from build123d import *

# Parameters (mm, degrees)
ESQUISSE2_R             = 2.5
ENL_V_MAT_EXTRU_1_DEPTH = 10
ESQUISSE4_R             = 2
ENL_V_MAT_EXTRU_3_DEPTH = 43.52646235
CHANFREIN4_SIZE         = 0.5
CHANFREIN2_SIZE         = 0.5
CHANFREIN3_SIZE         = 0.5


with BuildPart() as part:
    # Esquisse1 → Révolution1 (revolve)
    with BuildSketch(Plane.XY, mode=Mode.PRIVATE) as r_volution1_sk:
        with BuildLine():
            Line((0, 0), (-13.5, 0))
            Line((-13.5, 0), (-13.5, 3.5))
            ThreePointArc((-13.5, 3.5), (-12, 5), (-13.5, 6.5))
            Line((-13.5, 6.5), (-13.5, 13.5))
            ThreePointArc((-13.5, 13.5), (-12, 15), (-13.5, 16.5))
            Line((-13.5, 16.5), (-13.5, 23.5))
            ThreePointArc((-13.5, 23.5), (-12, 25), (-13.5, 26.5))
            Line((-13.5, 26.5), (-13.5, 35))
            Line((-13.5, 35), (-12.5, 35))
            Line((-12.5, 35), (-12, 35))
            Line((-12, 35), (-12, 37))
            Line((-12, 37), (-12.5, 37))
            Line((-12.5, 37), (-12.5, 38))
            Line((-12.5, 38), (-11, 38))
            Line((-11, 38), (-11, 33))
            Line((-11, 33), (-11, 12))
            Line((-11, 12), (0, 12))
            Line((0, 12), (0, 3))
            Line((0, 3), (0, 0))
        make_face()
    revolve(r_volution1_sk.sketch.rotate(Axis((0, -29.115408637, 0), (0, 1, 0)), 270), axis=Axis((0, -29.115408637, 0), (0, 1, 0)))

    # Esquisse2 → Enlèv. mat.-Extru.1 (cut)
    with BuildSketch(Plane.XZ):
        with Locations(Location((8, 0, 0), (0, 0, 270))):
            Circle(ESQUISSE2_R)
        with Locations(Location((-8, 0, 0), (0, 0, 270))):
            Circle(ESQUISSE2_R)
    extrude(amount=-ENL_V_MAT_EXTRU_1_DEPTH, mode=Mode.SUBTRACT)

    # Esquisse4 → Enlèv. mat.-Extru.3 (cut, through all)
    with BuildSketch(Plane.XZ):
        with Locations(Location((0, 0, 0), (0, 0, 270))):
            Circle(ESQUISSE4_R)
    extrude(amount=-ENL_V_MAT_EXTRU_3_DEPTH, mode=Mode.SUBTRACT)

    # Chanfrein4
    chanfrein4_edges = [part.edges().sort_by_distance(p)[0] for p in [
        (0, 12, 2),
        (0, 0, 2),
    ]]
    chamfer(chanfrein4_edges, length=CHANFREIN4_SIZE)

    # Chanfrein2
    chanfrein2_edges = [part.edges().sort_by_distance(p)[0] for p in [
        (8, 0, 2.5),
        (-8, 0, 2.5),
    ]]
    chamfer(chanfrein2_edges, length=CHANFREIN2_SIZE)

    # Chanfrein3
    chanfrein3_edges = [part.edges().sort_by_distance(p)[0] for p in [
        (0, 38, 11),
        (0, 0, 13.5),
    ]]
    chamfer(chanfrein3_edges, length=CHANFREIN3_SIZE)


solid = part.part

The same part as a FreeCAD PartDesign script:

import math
import FreeCAD as App
import Part
import Sketcher
Q = App.Units.Quantity


def edges_at(feature, points):
    """Names of the edges that pass closest to the given points."""
    edges = feature.Shape.Edges
    near = lambda p: min(range(len(edges)), key=lambda i: edges[i].distToShape(Part.Vertex(*p))[0])
    return sorted({f"Edge{near(p) + 1}" for p in points})

doc = App.newDocument("Part")
body = doc.addObject("PartDesign::Body", "Body")

# Sketch on XY plane
sketch1 = body.newObject("Sketcher::SketchObject", "Sketch")
sketch1.AttachmentSupport = (doc.getObject("XY_Plane"), [""])
sketch1.MapMode = "FlatFace"
sketch1.addGeometry([
    Part.LineSegment(App.Vector(-13.5, 0, 0), App.Vector(0, 0, 0)),  # 0
    Part.LineSegment(App.Vector(0, 0, 0), App.Vector(0, 12, 0)),  # 1
    Part.LineSegment(App.Vector(0, 12, 0), App.Vector(-11, 12, 0)),  # 2
    Part.LineSegment(App.Vector(-11, 12, 0), App.Vector(-11, 38, 0)),  # 3
    Part.LineSegment(App.Vector(-11, 38, 0), App.Vector(-12.5, 38, 0)),  # 4
    Part.LineSegment(App.Vector(-12.5, 38, 0), App.Vector(-12.5, 37, 0)),  # 5
    Part.LineSegment(App.Vector(-12.5, 37, 0), App.Vector(-12, 37, 0)),  # 6
    Part.LineSegment(App.Vector(-12, 37, 0), App.Vector(-12, 35, 0)),  # 7
    Part.LineSegment(App.Vector(-12, 35, 0), App.Vector(-13.5, 35, 0)),  # 8
    Part.LineSegment(App.Vector(-13.5, 35, 0), App.Vector(-13.5, 26.5, 0)),  # 9
    Part.ArcOfCircle(Part.Circle(App.Vector(-13.5, 25, 0), App.Vector(0, 0, 1), 1.5), math.radians(-90), math.radians(90)),  # 10
    Part.LineSegment(App.Vector(-13.5, 23.5, 0), App.Vector(-13.5, 16.5, 0)),  # 11
    Part.ArcOfCircle(Part.Circle(App.Vector(-13.5, 15, 0), App.Vector(0, 0, 1), 1.5), math.radians(-90), math.radians(90)),  # 12
    Part.LineSegment(App.Vector(-13.5, 13.5, 0), App.Vector(-13.5, 6.5, 0)),  # 13
    Part.ArcOfCircle(Part.Circle(App.Vector(-13.5, 5, 0), App.Vector(0, 0, 1), 1.5), math.radians(-90), math.radians(90)),  # 14
    Part.LineSegment(App.Vector(-13.5, 3.5, 0), App.Vector(-13.5, 0, 0)),  # 15
], False)
sketch1.addConstraint([
    Sketcher.Constraint("Coincident", 0, 2, 1, 1),
    Sketcher.Constraint("Coincident", 1, 2, 2, 1),
    Sketcher.Constraint("Coincident", 2, 2, 3, 1),
    Sketcher.Constraint("Coincident", 3, 2, 4, 1),
    Sketcher.Constraint("Coincident", 4, 2, 5, 1),
    Sketcher.Constraint("Coincident", 5, 2, 6, 1),
    Sketcher.Constraint("Coincident", 6, 2, 7, 1),
    Sketcher.Constraint("Coincident", 7, 2, 8, 1),
    Sketcher.Constraint("Coincident", 8, 2, 9, 1),
    Sketcher.Constraint("Coincident", 9, 2, 10, 2),
    Sketcher.Constraint("Coincident", 10, 1, 11, 1),
    Sketcher.Constraint("Coincident", 11, 2, 12, 2),
    Sketcher.Constraint("Coincident", 12, 1, 13, 1),
    Sketcher.Constraint("Coincident", 13, 2, 14, 2),
    Sketcher.Constraint("Coincident", 14, 1, 15, 1),
    Sketcher.Constraint("Coincident", 15, 2, 0, 1),
    Sketcher.Constraint("Horizontal", 0),
    Sketcher.Constraint("Vertical", 1),
    Sketcher.Constraint("Horizontal", 2),
    Sketcher.Constraint("Vertical", 3),
    Sketcher.Constraint("Horizontal", 4),
    Sketcher.Constraint("Vertical", 5),
    Sketcher.Constraint("Horizontal", 6),
    Sketcher.Constraint("Vertical", 7),
    Sketcher.Constraint("Horizontal", 8),
    Sketcher.Constraint("Vertical", 9),
    Sketcher.Constraint("Vertical", 11),
    Sketcher.Constraint("Vertical", 13),
    Sketcher.Constraint("Vertical", 15),
    Sketcher.Constraint("Coincident", 0, 2, -1, 1),
    Sketcher.Constraint("Equal", 10, 12),
    Sketcher.Constraint("Equal", 12, 14),
    Sketcher.Constraint("Vertical", 10, 3, 12, 3),
    Sketcher.Constraint("Vertical", 12, 3, 14, 3),
    Sketcher.Constraint("Vertical", 14, 3, 8, 2),
    Sketcher.Constraint("Vertical", 9, 2, 10, 1),
    Sketcher.Constraint("Vertical", 11, 2, 12, 1),
    Sketcher.Constraint("Vertical", 13, 2, 14, 1),
    Sketcher.Constraint("Equal", 4, 8),
    Sketcher.Constraint("Equal", 11, 13),
    Sketcher.Constraint("Radius", 10, Q("1.5 mm")),
    Sketcher.Constraint("DistanceX", 2, 2, 2, 1, Q("11 mm")),
    Sketcher.Constraint("DistanceY", 1, 1, 1, 2, Q("12 mm")),
    Sketcher.Constraint("DistanceY", 3, 1, 3, 2, Q("26 mm")),
    Sketcher.Constraint("DistanceY", 5, 2, 5, 1, Q("1 mm")),
    Sketcher.Constraint("DistanceY", 7, 2, 7, 1, Q("2 mm")),
    Sketcher.Constraint("DistanceY", 11, 2, 11, 1, Q("7 mm")),
    Sketcher.Constraint("DistanceX", 0, 1, 0, 2, Q("13.5 mm")),
    Sketcher.Constraint("DistanceX", 4, 2, 4, 1, Q("1.5 mm")),
    Sketcher.Constraint("DistanceY", 9, 2, 9, 1, Q("8.5 mm")),
])
revolution = body.newObject("PartDesign::Revolution", "Revolution")
revolution.Profile = sketch1
revolution.ReferenceAxis = (sketch1, ["V_Axis"])
revolution.Angle = 360

# Sketch on XZ plane
sketch2 = body.newObject("Sketcher::SketchObject", "Sketch001")
sketch2.AttachmentSupport = (doc.getObject("XZ_Plane"), [""])
sketch2.MapMode = "FlatFace"
sketch2.addGeometry([
    Part.Circle(App.Vector(8, 0, 0), App.Vector(0, 0, 1), 2.5),
    Part.Circle(App.Vector(-8, 0, 0), App.Vector(0, 0, 1), 2.5),
], False)
sketch2.addConstraint([
    Sketcher.Constraint("Equal", 0, 1),
    Sketcher.Constraint("Symmetric", 0, 3, 1, 3, -1, 1),
    Sketcher.Constraint("PointOnObject", 0, 3, -1),
    Sketcher.Constraint("Diameter", 0, Q("5 mm")),
    Sketcher.Constraint("DistanceX", -1, 1, 0, 3, Q("8 mm")),
])
pocket1 = body.newObject("PartDesign::Pocket", "Pocket")
pocket1.Profile = sketch2
pocket1.Length = 10

# Sketch on XZ plane
sketch3 = body.newObject("Sketcher::SketchObject", "Sketch002")
sketch3.AttachmentSupport = (doc.getObject("XZ_Plane"), [""])
sketch3.MapMode = "FlatFace"
sketch3.addGeometry(Part.Circle(App.Vector(0, 0, 0), App.Vector(0, 0, 1), 2), False)
sketch3.addConstraint([
    Sketcher.Constraint("Coincident", 0, 3, -1, 1),
    Sketcher.Constraint("Diameter", 0, Q("4 mm")),
])
pocket2 = body.newObject("PartDesign::Pocket", "Pocket001")
pocket2.Profile = sketch3
pocket2.Type = "ThroughAll"
doc.recompute()

chamfer = body.newObject("PartDesign::Chamfer", "Chamfer")
chamfer.Base = (pocket2, edges_at(pocket2, [(0, 12, 2), (0, 0, 2)]))
chamfer.Size = 0.5
doc.recompute()

chamfer2 = body.newObject("PartDesign::Chamfer", "Chamfer001")
chamfer2.Base = (chamfer, edges_at(chamfer, [(8, 0, 2.5), (-8, 0, 2.5)]))
chamfer2.Size = 0.5
doc.recompute()

chamfer3 = body.newObject("PartDesign::Chamfer", "Chamfer002")
chamfer3.Base = (chamfer2, edges_at(chamfer2, [(0, 38, 11), (0, 0, 13.5)]))
chamfer3.Size = 0.5

doc.recompute()
